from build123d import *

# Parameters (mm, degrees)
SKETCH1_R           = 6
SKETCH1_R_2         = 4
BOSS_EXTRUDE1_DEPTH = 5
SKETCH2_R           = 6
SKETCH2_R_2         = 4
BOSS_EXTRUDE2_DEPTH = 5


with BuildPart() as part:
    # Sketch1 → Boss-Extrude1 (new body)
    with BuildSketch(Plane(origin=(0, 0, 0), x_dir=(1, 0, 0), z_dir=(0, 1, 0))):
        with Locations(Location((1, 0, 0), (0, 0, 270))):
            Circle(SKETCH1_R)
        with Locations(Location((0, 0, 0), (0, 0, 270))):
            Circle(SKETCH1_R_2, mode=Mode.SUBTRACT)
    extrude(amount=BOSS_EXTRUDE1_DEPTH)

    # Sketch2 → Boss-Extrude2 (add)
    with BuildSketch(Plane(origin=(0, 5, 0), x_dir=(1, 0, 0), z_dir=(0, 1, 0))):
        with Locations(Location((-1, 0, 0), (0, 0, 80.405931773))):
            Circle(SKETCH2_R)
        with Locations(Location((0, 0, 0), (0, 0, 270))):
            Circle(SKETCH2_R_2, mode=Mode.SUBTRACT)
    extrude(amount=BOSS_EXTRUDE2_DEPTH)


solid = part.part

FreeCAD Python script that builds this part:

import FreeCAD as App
import Part
import Sketcher

doc = App.newDocument("Part")
body = doc.addObject("PartDesign::Body", "Body")

# Sketch on XZ plane
sketch1 = doc.addObject("Sketcher::SketchObject", "Sketch")
body.addObject(sketch1)
sketch1.AttachmentSupport = (doc.XZ_Plane, [""])
sketch1.MapMode = "FlatFace"
sketch1.addGeometry([
    Part.Circle(App.Vector(1, 0, 0), App.Vector(0, 0, 1), 6),
    Part.Circle(App.Vector(0, 0, 0), App.Vector(0, 0, 1), 4),
], False)
sketch1.addConstraint([
    Sketcher.Constraint("Coincident", 1, 3, -1, 1),
    Sketcher.Constraint("PointOnObject", 0, 3, -1),
    Sketcher.Constraint("Diameter", 0, 12.0),
    Sketcher.Constraint("Diameter", 1, 8.0),
    Sketcher.Constraint("DistanceX", -1, 1, 0, 3, 1.0),
])
pad1 = doc.addObject("PartDesign::Pad", "Pad")
body.addObject(pad1)
pad1.Profile = sketch1
pad1.Length = 5
pad1.Reversed = True

# Sketch on XZ plane
sketch2 = doc.addObject("Sketcher::SketchObject", "Sketch001")
body.addObject(sketch2)
sketch2.AttachmentSupport = (doc.XZ_Plane, [""])
sketch2.MapMode = "FlatFace"
sketch2.AttachmentOffset = App.Placement(App.Vector(0, 0, -5), App.Rotation())
sketch2.addGeometry([
    Part.Circle(App.Vector(-1, 0, 0), App.Vector(0, 0, 1), 6),
    Part.Circle(App.Vector(0, 0, 0), App.Vector(0, 0, 1), 4),
], False)
sketch2.addConstraint([
    Sketcher.Constraint("Coincident", 1, 3, -1, 1),
    Sketcher.Constraint("PointOnObject", 0, 3, -1),
    Sketcher.Constraint("Diameter", 0, 12.0),
    Sketcher.Constraint("Diameter", 1, 8.0),
    Sketcher.Constraint("DistanceX", 0, 3, -1, 1, 1.0),
])
pad2 = doc.addObject("PartDesign::Pad", "Pad001")
body.addObject(pad2)
pad2.Profile = sketch2
pad2.Length = 5
pad2.Reversed = True

doc.recompute()
